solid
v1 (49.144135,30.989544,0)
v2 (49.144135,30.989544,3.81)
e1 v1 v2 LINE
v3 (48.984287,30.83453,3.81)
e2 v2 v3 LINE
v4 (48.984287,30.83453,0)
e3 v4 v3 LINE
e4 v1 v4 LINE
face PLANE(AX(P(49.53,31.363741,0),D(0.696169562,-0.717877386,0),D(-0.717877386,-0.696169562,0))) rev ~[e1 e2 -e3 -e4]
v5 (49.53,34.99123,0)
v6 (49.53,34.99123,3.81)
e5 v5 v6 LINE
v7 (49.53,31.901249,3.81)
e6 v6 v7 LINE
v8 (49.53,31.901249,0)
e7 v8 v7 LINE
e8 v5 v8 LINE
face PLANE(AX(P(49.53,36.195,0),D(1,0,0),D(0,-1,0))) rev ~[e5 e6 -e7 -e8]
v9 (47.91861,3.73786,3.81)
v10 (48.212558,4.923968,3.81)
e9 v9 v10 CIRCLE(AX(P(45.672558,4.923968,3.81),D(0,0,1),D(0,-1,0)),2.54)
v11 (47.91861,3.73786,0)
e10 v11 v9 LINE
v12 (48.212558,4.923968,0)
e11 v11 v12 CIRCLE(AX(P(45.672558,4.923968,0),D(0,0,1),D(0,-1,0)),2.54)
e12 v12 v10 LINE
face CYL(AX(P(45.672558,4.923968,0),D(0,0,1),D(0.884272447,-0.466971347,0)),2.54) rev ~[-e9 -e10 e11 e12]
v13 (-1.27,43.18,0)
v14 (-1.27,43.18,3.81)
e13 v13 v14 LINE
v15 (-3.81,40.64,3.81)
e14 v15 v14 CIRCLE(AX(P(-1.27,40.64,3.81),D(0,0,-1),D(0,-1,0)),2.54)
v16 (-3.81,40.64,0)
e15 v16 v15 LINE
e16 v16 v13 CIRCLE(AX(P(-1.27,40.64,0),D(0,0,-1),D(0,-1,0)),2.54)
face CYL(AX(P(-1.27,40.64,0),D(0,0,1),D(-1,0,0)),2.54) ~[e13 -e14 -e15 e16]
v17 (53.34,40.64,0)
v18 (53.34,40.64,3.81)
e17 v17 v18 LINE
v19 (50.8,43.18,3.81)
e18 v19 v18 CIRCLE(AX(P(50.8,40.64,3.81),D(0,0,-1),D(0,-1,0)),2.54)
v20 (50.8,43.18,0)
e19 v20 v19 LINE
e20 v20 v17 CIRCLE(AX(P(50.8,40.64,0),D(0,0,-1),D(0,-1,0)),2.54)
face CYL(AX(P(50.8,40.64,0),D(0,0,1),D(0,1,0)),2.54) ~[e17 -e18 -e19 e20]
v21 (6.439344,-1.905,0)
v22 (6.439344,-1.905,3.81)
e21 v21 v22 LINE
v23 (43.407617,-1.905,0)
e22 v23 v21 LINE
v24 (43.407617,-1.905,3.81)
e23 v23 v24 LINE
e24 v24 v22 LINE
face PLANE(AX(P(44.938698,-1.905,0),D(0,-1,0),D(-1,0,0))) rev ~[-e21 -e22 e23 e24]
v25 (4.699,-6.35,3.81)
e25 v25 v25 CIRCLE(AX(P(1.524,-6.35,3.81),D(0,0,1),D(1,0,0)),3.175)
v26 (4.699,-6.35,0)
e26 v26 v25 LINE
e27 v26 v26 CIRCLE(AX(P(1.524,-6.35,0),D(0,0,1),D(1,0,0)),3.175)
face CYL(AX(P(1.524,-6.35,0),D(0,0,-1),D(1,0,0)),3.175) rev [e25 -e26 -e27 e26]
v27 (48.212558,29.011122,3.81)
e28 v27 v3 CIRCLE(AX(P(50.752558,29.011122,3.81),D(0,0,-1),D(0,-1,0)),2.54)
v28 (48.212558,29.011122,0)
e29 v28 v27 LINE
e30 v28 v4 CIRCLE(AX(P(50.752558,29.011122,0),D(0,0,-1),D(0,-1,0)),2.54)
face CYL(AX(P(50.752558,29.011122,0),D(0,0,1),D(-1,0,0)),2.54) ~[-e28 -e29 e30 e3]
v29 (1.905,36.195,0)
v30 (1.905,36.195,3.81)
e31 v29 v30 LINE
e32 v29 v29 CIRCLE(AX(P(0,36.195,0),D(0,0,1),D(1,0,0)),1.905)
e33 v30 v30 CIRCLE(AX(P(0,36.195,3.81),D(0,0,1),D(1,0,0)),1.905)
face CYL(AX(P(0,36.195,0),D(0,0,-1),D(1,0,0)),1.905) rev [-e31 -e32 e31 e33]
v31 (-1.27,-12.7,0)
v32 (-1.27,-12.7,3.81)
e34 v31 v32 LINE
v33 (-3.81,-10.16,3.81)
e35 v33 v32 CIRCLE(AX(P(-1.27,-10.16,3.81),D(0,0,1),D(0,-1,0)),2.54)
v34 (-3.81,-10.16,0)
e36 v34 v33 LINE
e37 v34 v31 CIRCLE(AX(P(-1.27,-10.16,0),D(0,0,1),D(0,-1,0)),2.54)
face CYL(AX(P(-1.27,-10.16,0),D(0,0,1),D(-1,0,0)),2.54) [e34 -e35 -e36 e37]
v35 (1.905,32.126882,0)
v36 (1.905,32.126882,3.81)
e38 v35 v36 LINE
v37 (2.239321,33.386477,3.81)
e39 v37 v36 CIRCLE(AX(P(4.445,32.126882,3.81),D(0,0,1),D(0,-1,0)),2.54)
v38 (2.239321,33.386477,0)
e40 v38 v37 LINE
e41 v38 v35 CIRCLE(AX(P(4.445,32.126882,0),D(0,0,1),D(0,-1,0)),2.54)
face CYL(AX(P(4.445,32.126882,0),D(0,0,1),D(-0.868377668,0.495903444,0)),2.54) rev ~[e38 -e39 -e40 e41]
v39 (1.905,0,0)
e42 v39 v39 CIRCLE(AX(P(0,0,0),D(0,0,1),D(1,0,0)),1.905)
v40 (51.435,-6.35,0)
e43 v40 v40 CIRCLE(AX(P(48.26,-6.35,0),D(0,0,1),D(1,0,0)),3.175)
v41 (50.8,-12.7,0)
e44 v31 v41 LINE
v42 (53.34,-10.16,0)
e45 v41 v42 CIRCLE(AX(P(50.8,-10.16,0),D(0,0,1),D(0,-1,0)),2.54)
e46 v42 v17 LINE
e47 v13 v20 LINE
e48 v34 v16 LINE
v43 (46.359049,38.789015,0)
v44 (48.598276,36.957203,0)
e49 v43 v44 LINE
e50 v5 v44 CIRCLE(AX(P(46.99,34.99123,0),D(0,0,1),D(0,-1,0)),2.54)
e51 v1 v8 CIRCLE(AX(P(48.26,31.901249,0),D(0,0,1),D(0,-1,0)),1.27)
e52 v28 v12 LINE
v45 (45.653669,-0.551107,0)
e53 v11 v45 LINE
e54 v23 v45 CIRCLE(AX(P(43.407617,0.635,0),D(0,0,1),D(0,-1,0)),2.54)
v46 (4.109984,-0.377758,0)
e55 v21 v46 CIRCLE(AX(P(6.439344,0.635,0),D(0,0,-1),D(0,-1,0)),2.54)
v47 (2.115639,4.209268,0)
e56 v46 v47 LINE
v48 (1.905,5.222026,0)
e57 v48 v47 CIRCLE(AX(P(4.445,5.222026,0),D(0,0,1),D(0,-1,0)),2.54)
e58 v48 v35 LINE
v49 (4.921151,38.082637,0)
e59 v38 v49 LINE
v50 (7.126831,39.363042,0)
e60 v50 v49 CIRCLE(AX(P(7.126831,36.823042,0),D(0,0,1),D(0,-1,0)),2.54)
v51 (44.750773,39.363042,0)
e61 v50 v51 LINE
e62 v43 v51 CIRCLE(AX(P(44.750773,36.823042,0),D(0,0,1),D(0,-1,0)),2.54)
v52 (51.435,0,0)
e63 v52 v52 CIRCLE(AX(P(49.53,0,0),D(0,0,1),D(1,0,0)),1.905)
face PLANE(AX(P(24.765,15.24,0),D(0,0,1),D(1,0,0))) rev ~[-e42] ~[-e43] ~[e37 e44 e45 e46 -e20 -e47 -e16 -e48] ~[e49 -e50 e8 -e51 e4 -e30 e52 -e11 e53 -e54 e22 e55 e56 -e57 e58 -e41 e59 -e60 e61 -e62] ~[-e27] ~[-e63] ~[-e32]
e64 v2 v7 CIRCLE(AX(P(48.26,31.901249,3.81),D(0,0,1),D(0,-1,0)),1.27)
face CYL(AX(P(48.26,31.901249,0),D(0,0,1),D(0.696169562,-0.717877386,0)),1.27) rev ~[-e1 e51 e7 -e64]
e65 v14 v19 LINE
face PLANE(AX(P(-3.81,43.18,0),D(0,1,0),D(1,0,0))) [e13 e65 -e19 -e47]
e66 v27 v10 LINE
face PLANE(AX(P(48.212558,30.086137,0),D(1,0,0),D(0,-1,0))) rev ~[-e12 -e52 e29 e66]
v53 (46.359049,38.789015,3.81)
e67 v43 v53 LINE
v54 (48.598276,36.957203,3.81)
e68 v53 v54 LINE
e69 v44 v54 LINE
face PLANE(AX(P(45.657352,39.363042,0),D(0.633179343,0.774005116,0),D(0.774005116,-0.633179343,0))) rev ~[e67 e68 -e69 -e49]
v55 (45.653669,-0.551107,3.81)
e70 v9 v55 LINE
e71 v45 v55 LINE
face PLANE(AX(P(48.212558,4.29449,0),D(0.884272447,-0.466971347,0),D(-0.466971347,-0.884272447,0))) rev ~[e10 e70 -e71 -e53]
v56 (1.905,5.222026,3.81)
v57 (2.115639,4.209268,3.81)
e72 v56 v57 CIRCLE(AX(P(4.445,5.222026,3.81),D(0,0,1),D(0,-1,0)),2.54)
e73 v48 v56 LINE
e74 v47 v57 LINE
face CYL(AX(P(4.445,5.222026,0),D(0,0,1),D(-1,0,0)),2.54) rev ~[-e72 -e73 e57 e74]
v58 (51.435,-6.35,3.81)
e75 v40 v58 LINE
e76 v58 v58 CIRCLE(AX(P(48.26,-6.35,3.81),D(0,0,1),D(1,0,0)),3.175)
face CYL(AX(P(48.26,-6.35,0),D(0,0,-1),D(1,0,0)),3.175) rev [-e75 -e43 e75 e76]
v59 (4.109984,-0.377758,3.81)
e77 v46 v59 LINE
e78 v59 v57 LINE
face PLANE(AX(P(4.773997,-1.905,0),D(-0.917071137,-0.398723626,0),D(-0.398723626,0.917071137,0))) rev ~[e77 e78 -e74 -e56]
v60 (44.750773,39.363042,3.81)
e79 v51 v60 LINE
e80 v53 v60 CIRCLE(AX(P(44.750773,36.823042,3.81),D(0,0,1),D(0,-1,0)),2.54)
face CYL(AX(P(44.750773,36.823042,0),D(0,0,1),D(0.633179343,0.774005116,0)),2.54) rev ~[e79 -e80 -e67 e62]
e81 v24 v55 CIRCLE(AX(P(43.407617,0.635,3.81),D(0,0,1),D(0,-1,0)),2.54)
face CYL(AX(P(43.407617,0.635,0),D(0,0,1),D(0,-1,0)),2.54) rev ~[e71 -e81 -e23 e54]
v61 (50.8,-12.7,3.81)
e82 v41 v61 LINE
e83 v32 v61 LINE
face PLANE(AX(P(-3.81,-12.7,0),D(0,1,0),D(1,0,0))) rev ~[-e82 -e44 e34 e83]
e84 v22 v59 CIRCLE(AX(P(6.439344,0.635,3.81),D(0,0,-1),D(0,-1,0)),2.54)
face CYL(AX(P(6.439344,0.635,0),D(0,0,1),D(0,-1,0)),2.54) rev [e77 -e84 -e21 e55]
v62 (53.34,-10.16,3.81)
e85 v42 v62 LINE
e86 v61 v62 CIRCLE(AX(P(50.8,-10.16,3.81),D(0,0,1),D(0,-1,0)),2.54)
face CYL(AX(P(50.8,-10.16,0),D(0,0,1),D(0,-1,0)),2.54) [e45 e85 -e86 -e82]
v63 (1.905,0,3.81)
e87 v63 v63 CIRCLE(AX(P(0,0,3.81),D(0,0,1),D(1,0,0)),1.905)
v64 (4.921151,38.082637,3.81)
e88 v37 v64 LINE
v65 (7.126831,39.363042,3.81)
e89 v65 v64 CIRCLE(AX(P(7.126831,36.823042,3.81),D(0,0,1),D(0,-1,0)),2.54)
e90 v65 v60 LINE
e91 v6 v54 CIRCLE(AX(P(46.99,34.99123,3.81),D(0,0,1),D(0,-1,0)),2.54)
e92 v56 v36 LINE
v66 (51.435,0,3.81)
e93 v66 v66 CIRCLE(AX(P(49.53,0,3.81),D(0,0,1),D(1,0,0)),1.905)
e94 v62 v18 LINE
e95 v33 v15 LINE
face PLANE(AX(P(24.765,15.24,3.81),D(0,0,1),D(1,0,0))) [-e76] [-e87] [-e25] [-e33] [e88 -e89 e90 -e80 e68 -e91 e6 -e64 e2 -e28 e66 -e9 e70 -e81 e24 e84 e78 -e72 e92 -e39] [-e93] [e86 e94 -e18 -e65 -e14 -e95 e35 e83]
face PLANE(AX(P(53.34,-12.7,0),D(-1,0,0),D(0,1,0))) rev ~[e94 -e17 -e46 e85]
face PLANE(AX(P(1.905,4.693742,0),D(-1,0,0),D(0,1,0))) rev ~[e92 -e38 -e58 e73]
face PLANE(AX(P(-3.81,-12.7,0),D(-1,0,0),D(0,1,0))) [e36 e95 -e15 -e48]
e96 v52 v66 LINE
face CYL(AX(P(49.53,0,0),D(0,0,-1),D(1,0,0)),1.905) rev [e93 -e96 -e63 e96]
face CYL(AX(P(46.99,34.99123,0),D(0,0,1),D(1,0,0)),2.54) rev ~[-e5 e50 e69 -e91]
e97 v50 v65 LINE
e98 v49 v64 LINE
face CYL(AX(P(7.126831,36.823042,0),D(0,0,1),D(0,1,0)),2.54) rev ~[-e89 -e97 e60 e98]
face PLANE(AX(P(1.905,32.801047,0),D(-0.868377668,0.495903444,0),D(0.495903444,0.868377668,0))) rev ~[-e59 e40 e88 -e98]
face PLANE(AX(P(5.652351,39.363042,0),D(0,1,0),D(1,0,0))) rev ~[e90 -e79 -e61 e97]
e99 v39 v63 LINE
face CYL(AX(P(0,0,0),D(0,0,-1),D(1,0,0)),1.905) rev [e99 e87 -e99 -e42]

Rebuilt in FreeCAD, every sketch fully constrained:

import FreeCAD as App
import Part
import Sketcher
Q = App.Units.Quantity


def edges_at(feature, points):
    """Names of the edges that pass closest to the given points."""
    edges = feature.Shape.Edges
    near = lambda p: min(range(len(edges)), key=lambda i: edges[i].distToShape(Part.Vertex(*p))[0])
    return sorted({f"Edge{near(p) + 1}" for p in points})


def add_polygon(sketch, points):
    """Adds a closed chain of lines whose ends are joined by coincident constraints."""
    first, n = sketch.GeometryCount, len(points)
    for a, b in zip(points, points[1:] + points[:1]):
        sketch.addGeometry(Part.LineSegment(App.Vector(*a, 0), App.Vector(*b, 0)), False)
    for i in range(n):
        sketch.addConstraint(Sketcher.Constraint("Coincident", first + i, 2, first + (i + 1) % n, 1))

doc = App.newDocument("Part")
body = doc.addObject("PartDesign::Body", "Body")

sketch1 = doc.addObject("Sketcher::SketchObject", "Sketch")
body.addObject(sketch1)
sketch1.AttachmentSupport = (doc.XY_Plane, [""])
sketch1.MapMode = "FlatFace"
add_polygon(sketch1, [(-3.8, 43.2), (-3.8, -12.7), (53.3, -12.7), (53.3, 43.2)])
sketch1.addGeometry(Part.Circle(App.Vector(1.5, -6.3, 0), App.Vector(0, 0, 1), 3.2), False)
sketch1.addGeometry(Part.Circle(App.Vector(0, 0, 0), App.Vector(0, 0, 1), 1.9), False)
sketch1.addGeometry(Part.Circle(App.Vector(48.3, -6.3, 0), App.Vector(0, 0, 1), 3.2), False)
sketch1.addGeometry(Part.Circle(App.Vector(49.5, 0, 0), App.Vector(0, 0, 1), 1.9), False)
sketch1.addGeometry(Part.Circle(App.Vector(0, 36.2, 0), App.Vector(0, 0, 1), 1.9), False)
add_polygon(sketch1, [(44.9, -1.9), (4.8, -1.9), (1.9, 4.7), (1.9, 32.8), (5.7, 39.4), (45.7, 39.4), (49.5, 36.2), (49.5, 31.4), (48.2, 30.1), (48.2, 4.3)])
sketch1.addConstraint([
    Sketcher.Constraint("Vertical", 0),
    Sketcher.Constraint("Horizontal", 1),
    Sketcher.Constraint("Vertical", 2),
    Sketcher.Constraint("Horizontal", 3),
    Sketcher.Constraint("Horizontal", 9),
    Sketcher.Constraint("Vertical", 11),
    Sketcher.Constraint("Horizontal", 13),
    Sketcher.Constraint("Vertical", 15),
    Sketcher.Constraint("Vertical", 17),
    Sketcher.Constraint("Coincident", 5, 3, -1, 1),
    Sketcher.Constraint("Equal", 4, 6),
    Sketcher.Constraint("Equal", 5, 7),
    Sketcher.Constraint("Equal", 7, 8),
    Sketcher.Constraint("PointOnObject", 7, 3, -1),
    Sketcher.Constraint("PointOnObject", 8, 3, -2),
    Sketcher.Constraint("Horizontal", 4, 3, 6, 3),
    Sketcher.Constraint("Horizontal", 8, 3, 14, 2),
    Sketcher.Constraint("Vertical", 7, 3, 14, 2),
    Sketcher.Constraint("Diameter", 4, Q("0.25 in")),
    Sketcher.Constraint("Diameter", 5, Q("0.15 in")),
    Sketcher.Constraint("DistanceY", 0, 2, 0, 1, Q("2.2 in")),
    Sketcher.Constraint("DistanceX", 1, 1, 1, 2, Q("2.25 in")),
    Sketcher.Constraint("DistanceX", -1, 1, 6, 3, Q("1.9 in")),
    Sketcher.Constraint("DistanceY", 0, 2, -1, 1, Q("0.5 in")),
    Sketcher.Constraint("DistanceX", -1, 1, 1, 2, Q("2.1 in")),
    Sketcher.Constraint("DistanceX", 0, 2, 7, 3, Q("2.1 in")),
    Sketcher.Constraint("DistanceY", 9, 2, 8, 3, Q("1.5 in")),
    Sketcher.Constraint("DistanceX", 13, 1, 13, 2, Q("1.575 in")),
    Sketcher.Constraint("DistanceX", -1, 1, 4, 3, Q("0.06 in")),
    Sketcher.Constraint("DistanceY", 4, 3, -1, 1, Q("0.25 in")),
    Sketcher.Constraint("DistanceY", -1, 1, 8, 3, Q("1.425 in")),
    Sketcher.Constraint("DistanceX", -1, 1, 10, 2, Q("0.075 in")),
    Sketcher.Constraint("DistanceX", 9, 2, 9, 1, 40.164701),
    Sketcher.Constraint("DistanceY", 15, 2, 15, 1, 4.831259),
    Sketcher.Constraint("DistanceX", -1, 1, 18, 2, 44.938698),
    Sketcher.Constraint("DistanceY", 10, 2, 12, 2, 34.6693),
    Sketcher.Constraint("DistanceY", 15, 2, 13, 2, 7.999301),
    Sketcher.Constraint("Distance", 14, 5.003388),
    Sketcher.Constraint("Distance", 16, 1.835191),
    Sketcher.Constraint("DistanceY", 11, 1, 11, 2, 28.107305),
    Sketcher.Constraint("DistanceY", 17, 2, 17, 1, 25.791647),
    Sketcher.Constraint("DistanceY", -1, 1, 17, 2, 4.29449),
])
pad1 = doc.addObject("PartDesign::Pad", "Pad")
body.addObject(pad1)
pad1.Profile = sketch1
pad1.Length = Q("0.15 in")
doc.recompute()

fillet = doc.addObject("PartDesign::Fillet", "Fillet")
body.addObject(fillet)
fillet.Base = (pad1, edges_at(pad1, [
    (-3.81, -12.7, 1.905),
    (-3.81, 43.18, 1.905),
    (53.34, -12.7, 1.905),
    (53.34, 43.18, 1.905),
    (1.905, 32.801, 1.905),
    (5.652, 39.363, 1.905),
    (1.905, 4.694, 1.905),
    (4.774, -1.905, 1.905),
    (45.657, 39.363, 1.905),
    (49.53, 36.195, 1.905),
    (48.213, 30.086, 1.905),
    (48.213, 4.294, 1.905),
    (44.939, -1.905, 1.905),
]))
fillet.Radius = Q("0.1 in")
doc.recompute()

fillet2 = doc.addObject("PartDesign::Fillet", "Fillet001")
body.addObject(fillet2)
fillet2.Base = (fillet, edges_at(fillet, [(49.53, 31.364, 1.905)]))
fillet2.Radius = Q("0.05 in")

doc.recompute()
